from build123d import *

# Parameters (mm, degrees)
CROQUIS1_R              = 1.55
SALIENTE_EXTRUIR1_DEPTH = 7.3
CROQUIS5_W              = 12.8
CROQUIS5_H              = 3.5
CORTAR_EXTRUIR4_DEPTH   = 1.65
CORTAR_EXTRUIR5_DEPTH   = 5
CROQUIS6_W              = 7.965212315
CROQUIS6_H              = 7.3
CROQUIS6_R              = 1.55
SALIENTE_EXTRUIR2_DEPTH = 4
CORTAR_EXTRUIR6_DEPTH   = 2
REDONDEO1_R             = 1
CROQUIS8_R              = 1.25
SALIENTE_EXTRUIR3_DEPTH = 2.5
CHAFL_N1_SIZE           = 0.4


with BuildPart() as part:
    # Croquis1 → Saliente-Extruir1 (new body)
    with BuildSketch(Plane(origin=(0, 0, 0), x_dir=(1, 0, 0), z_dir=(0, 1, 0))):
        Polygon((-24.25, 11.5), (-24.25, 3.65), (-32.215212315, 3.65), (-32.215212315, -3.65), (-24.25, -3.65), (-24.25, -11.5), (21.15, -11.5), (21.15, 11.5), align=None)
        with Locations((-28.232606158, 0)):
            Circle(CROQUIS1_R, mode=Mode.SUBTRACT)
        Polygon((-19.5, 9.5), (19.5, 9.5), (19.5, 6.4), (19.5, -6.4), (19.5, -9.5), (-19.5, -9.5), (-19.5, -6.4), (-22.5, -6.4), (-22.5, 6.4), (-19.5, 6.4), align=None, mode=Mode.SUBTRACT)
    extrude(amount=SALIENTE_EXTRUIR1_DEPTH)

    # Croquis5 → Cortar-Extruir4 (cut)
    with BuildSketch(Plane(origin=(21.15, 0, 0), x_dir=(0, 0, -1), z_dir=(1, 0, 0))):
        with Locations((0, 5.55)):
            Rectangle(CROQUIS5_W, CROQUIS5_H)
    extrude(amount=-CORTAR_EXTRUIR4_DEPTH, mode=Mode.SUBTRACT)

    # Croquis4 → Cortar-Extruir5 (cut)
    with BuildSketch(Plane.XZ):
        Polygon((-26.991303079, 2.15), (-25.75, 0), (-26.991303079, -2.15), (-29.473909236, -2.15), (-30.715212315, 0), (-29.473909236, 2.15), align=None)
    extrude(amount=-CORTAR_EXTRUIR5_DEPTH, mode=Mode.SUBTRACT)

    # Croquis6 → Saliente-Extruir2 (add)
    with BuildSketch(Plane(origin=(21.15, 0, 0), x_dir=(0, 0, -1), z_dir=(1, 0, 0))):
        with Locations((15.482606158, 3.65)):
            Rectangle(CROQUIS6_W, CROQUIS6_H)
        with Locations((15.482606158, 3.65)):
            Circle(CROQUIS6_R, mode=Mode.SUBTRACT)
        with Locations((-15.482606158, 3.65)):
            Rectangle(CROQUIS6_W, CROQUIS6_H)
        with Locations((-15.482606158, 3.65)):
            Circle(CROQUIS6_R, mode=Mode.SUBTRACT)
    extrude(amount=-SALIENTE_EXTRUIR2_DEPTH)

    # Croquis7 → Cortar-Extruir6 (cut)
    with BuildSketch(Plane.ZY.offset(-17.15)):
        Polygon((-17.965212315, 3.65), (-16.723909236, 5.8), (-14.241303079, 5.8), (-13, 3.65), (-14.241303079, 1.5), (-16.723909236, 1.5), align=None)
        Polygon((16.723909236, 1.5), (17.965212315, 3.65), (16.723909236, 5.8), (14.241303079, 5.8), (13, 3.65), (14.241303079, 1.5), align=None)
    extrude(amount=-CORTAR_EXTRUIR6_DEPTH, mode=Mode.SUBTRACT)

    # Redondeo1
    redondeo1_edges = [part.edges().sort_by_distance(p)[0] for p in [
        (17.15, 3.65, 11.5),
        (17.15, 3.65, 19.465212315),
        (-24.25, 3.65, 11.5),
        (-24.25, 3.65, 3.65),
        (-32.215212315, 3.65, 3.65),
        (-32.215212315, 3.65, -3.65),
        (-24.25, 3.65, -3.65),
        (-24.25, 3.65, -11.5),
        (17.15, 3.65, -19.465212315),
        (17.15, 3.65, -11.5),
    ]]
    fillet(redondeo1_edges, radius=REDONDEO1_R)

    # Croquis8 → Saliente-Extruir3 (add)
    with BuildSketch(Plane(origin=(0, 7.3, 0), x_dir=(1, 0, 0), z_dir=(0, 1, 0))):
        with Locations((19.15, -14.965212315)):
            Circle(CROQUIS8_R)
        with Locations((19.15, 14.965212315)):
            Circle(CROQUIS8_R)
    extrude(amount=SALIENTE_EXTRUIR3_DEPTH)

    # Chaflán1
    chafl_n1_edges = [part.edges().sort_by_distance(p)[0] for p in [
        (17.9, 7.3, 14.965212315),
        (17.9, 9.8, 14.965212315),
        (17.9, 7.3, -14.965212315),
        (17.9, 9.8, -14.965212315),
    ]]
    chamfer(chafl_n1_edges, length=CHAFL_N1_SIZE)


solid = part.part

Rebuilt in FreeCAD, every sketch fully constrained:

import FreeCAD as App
import Part
import Sketcher
Q = App.Units.Quantity


def edges_at(feature, points):
    """Names of the edges that pass closest to the given points."""
    edges = feature.Shape.Edges
    near = lambda p: min(range(len(edges)), key=lambda i: edges[i].distToShape(Part.Vertex(*p))[0])
    return sorted({f"Edge{near(p) + 1}" for p in points})


def add_polygon(sketch, points):
    """Adds a closed chain of lines whose ends are joined by coincident constraints."""
    first, n = sketch.GeometryCount, len(points)
    for a, b in zip(points, points[1:] + points[:1]):
        sketch.addGeometry(Part.LineSegment(App.Vector(*a, 0), App.Vector(*b, 0)), False)
    for i in range(n):
        sketch.addConstraint(Sketcher.Constraint("Coincident", first + i, 2, first + (i + 1) % n, 1))

doc = App.newDocument("Part")
params = doc.addObject("Spreadsheet::Sheet", "Params")
for row, (alias, value) in enumerate([
    ("sketch1_diameter", "3.1 mm"),
    ("sketch1_width", "39 mm"),
    ("sketch1_width2", "3 mm"),
    ("sketch1_height", "23 mm"),
    ("sketch1_height2", "19 mm"),
    ("pad1_length", "7.3 mm"),
    ("sketch2_width", "3.5 mm"),
    ("sketch2_height", "12.8 mm"),
    ("pocket1_length", "1.65 mm"),
    ("pocket2_length", "5 mm"),
    ("sketch4_diameter", "3.1 mm"),
    ("sketch4_width", "7.3 mm"),
    ("pad2_length", "4 mm"),
    ("pocket3_length", "2 mm"),
    ("fillet_radius", "1 mm"),
    ("sketch6_diameter", "2.5 mm"),
    ("pad3_length", "2.5 mm"),
    ("chamfer_size", "0.4 mm"),
], start=1):
    params.set(f"A{row}", alias)
    params.set(f"B{row}", "=" + value)
    params.setAlias(f"B{row}", alias)

body = doc.addObject("PartDesign::Body", "Body")

# Sketch on XZ plane
sketch1 = doc.addObject("Sketcher::SketchObject", "Sketch")
body.addObject(sketch1)
sketch1.AttachmentSupport = (doc.XZ_Plane, [""])
sketch1.MapMode = "FlatFace"
add_polygon(sketch1, [(-24.25, -11.5), (-24.25, -3.65), (-32.215212, -3.65), (-32.215212, 3.65), (-24.25, 3.65), (-24.25, 11.5), (21.15, 11.5), (21.15, -11.5)])  # lines 0-7
sketch1.addGeometry(Part.Circle(App.Vector(-28.232606, 0, 0), App.Vector(0, 0, 1), 1.55), False)  # 8
add_polygon(sketch1, [(-19.5, -6.4), (-19.5, -9.5), (19.5, -9.5), (19.5, 9.5), (-19.5, 9.5), (-19.5, 6.4), (-22.5, 6.4), (-22.5, -6.4)])  # lines 9-16
sketch1.addConstraint(Sketcher.Constraint("Vertical", 0))
sketch1.addConstraint(Sketcher.Constraint("Horizontal", 1))
sketch1.addConstraint(Sketcher.Constraint("Vertical", 2))
sketch1.addConstraint(Sketcher.Constraint("Horizontal", 3))
sketch1.addConstraint(Sketcher.Constraint("Vertical", 4))
sketch1.addConstraint(Sketcher.Constraint("Horizontal", 5))
sketch1.addConstraint(Sketcher.Constraint("Vertical", 6))
sketch1.addConstraint(Sketcher.Constraint("Horizontal", 7))
sketch1.addConstraint(Sketcher.Constraint("Vertical", 9))
sketch1.addConstraint(Sketcher.Constraint("Horizontal", 10))
sketch1.addConstraint(Sketcher.Constraint("Vertical", 11))
sketch1.addConstraint(Sketcher.Constraint("Horizontal", 12))
sketch1.addConstraint(Sketcher.Constraint("Vertical", 13))
sketch1.addConstraint(Sketcher.Constraint("Horizontal", 14))
sketch1.addConstraint(Sketcher.Constraint("Vertical", 15))
sketch1.addConstraint(Sketcher.Constraint("Horizontal", 16))
sketch1.addConstraint(Sketcher.Constraint("Symmetric", 9, 2, 11, 2, -1, 1))
sketch1.addConstraint(Sketcher.Constraint("Symmetric", 0, 2, 3, 2, -1))
sketch1.addConstraint(Sketcher.Constraint("Symmetric", 13, 2, 16, 2, -1))
sketch1.addConstraint(Sketcher.Constraint("PointOnObject", 8, 3, -1))
sketch1.addConstraint(Sketcher.Constraint("Equal", 0, 4))
sketch1.addConstraint(Sketcher.Constraint("Diameter", 8, 3.1))
sketch1.addConstraint(Sketcher.Constraint("DistanceX", 10, 1, 10, 2, 39.0))
sketch1.addConstraint(Sketcher.Constraint("DistanceX", 14, 2, 14, 1, 3.0))
sketch1.addConstraint(Sketcher.Constraint("DistanceY", 6, 2, 6, 1, 23.0))
sketch1.addConstraint(Sketcher.Constraint("DistanceY", 11, 1, 11, 2, 19.0))
sketch1.addConstraint(Sketcher.Constraint("DistanceX", 5, 1, 5, 2, 45.4))
sketch1.addConstraint(Sketcher.Constraint("DistanceY", 2, 1, 2, 2, 7.3))
sketch1.addConstraint(Sketcher.Constraint("DistanceY", 9, 2, 9, 1, 3.1))
sketch1.addConstraint(Sketcher.Constraint("DistanceX", 0, 2, -1, 1, 24.25))
sketch1.addConstraint(Sketcher.Constraint("DistanceX", 1, 2, 1, 1, 7.965212))
sketch1.addConstraint(Sketcher.Constraint("DistanceX", 8, 3, -1, 1, 28.232606))
sketch1.setExpression("Constraints[37]", "Params.sketch1_diameter")
sketch1.setExpression("Constraints[38]", "Params.sketch1_width")
sketch1.setExpression("Constraints[39]", "Params.sketch1_width2")
sketch1.setExpression("Constraints[40]", "Params.sketch1_height")
sketch1.setExpression("Constraints[41]", "Params.sketch1_height2")
pad1 = doc.addObject("PartDesign::Pad", "Pad")
body.addObject(pad1)
pad1.Profile = sketch1
pad1.setExpression("Length", "Params.pad1_length")
pad1.Reversed = True

# Sketch on YZ plane
sketch2 = doc.addObject("Sketcher::SketchObject", "Sketch001")
body.addObject(sketch2)
sketch2.AttachmentSupport = (doc.YZ_Plane, [""])
sketch2.MapMode = "FlatFace"
sketch2.AttachmentOffset = App.Placement(App.Vector(0, 0, 21.15), App.Rotation())
add_polygon(sketch2, [(7.3, 6.4), (3.8, 6.4), (3.8, -6.4), (7.3, -6.4)])  # lines 0-3
sketch2.addConstraint(Sketcher.Constraint("Horizontal", 0))
sketch2.addConstraint(Sketcher.Constraint("Vertical", 1))
sketch2.addConstraint(Sketcher.Constraint("Horizontal", 2))
sketch2.addConstraint(Sketcher.Constraint("Vertical", 3))
sketch2.addConstraint(Sketcher.Constraint("DistanceX", 0, 2, 0, 1, 3.5))
sketch2.addConstraint(Sketcher.Constraint("DistanceY", 1, 2, 1, 1, 12.8))
sketch2.addConstraint(Sketcher.Constraint("DistanceX", -1, 1, 0, 2, 3.8))
sketch2.addConstraint(Sketcher.Constraint("DistanceY", -1, 1, 0, 2, 6.4))
sketch2.setExpression("Constraints[8]", "Params.sketch2_width")
sketch2.setExpression("Constraints[9]", "Params.sketch2_height")
pocket1 = doc.addObject("PartDesign::Pocket", "Pocket")
body.addObject(pocket1)
pocket1.Profile = sketch2
pocket1.setExpression("Length", "Params.pocket1_length")

# Sketch on XZ plane
sketch3 = doc.addObject("Sketcher::SketchObject", "Sketch002")
body.addObject(sketch3)
sketch3.AttachmentSupport = (doc.XZ_Plane, [""])
sketch3.MapMode = "FlatFace"
add_polygon(sketch3, [(-25.75, 0), (-26.991303, 2.15), (-29.473909, 2.15), (-30.715212, 0), (-29.473909, -2.15), (-26.991303, -2.15)])  # lines 0-5
sketch3.addConstraint(Sketcher.Constraint("Horizontal", 1))
sketch3.addConstraint(Sketcher.Constraint("Horizontal", 4))
sketch3.addConstraint(Sketcher.Constraint("Symmetric", 1, 2, 3, 2, -1))
sketch3.addConstraint(Sketcher.Constraint("PointOnObject", 2, 2, -1))
sketch3.addConstraint(Sketcher.Constraint("PointOnObject", 5, 2, -1))
sketch3.addConstraint(Sketcher.Constraint("Parallel", 0, 3))
sketch3.addConstraint(Sketcher.Constraint("Parallel", 2, 5))
sketch3.addConstraint(Sketcher.Constraint("Angle", 0, Q("120 deg")))
sketch3.addConstraint(Sketcher.Constraint("DistanceY", 3, 2, 1, 2, 4.3))
sketch3.addConstraint(Sketcher.Constraint("DistanceX", 5, 2, -1, 1, 25.75))
sketch3.addConstraint(Sketcher.Constraint("DistanceX", 1, 2, 1, 1, 2.482606))
pocket2 = doc.addObject("PartDesign::Pocket", "Pocket001")
body.addObject(pocket2)
pocket2.Profile = sketch3
pocket2.setExpression("Length", "Params.pocket2_length")

# Sketch on YZ plane
sketch4 = doc.addObject("Sketcher::SketchObject", "Sketch003")
body.addObject(sketch4)
sketch4.AttachmentSupport = (doc.YZ_Plane, [""])
sketch4.MapMode = "FlatFace"
sketch4.AttachmentOffset = App.Placement(App.Vector(0, 0, 21.15), App.Rotation())
add_polygon(sketch4, [(7.3, -11.5), (0, -11.5), (0, -19.465212), (7.3, -19.465212)])  # lines 0-3
sketch4.addGeometry(Part.Circle(App.Vector(3.65, -15.482606, 0), App.Vector(0, 0, 1), 1.55), False)  # 4
add_polygon(sketch4, [(7.3, 19.465212), (0, 19.465212), (0, 11.5), (7.3, 11.5)])  # lines 5-8
sketch4.addGeometry(Part.Circle(App.Vector(3.65, 15.482606, 0), App.Vector(0, 0, 1), 1.55), False)  # 9
sketch4.addConstraint(Sketcher.Constraint("Horizontal", 0))
sketch4.addConstraint(Sketcher.Constraint("Vertical", 1))
sketch4.addConstraint(Sketcher.Constraint("Horizontal", 2))
sketch4.addConstraint(Sketcher.Constraint("Vertical", 3))
sketch4.addConstraint(Sketcher.Constraint("Horizontal", 5))
sketch4.addConstraint(Sketcher.Constraint("Vertical", 6))
sketch4.addConstraint(Sketcher.Constraint("Horizontal", 7))
sketch4.addConstraint(Sketcher.Constraint("Vertical", 8))
sketch4.addConstraint(Sketcher.Constraint("Equal", 4, 9))
sketch4.addConstraint(Sketcher.Constraint("Symmetric", 1, 2, 5, 2, -1, 1))
sketch4.addConstraint(Sketcher.Constraint("Symmetric", 4, 3, 9, 3, -1))
sketch4.addConstraint(Sketcher.Constraint("Symmetric", 0, 2, 6, 2, -1))
sketch4.addConstraint(Sketcher.Constraint("Vertical", 3, 2, 7, 2))
sketch4.addConstraint(Sketcher.Constraint("Diameter", 4, 3.1))
sketch4.addConstraint(Sketcher.Constraint("DistanceX", 0, 2, 0, 1, 7.3))
sketch4.addConstraint(Sketcher.Constraint("DistanceY", 0, 2, 6, 2, 23.0))
sketch4.addConstraint(Sketcher.Constraint("DistanceX", -1, 1, 4, 3, 3.65))
sketch4.addConstraint(Sketcher.Constraint("DistanceY", 1, 2, 1, 1, 7.965212))
sketch4.addConstraint(Sketcher.Constraint("DistanceY", 1, 2, 9, 3, 34.947818))
sketch4.setExpression("Constraints[21]", "Params.sketch4_diameter")
sketch4.setExpression("Constraints[22]", "Params.sketch4_width")
pad2 = doc.addObject("PartDesign::Pad", "Pad001")
body.addObject(pad2)
pad2.Profile = sketch4
pad2.setExpression("Length", "Params.pad2_length")
pad2.Reversed = True

# Sketch on YZ plane
sketch5 = doc.addObject("Sketcher::SketchObject", "Sketch004")
body.addObject(sketch5)
sketch5.AttachmentSupport = (doc.YZ_Plane, [""])
sketch5.MapMode = "FlatFace"
sketch5.AttachmentOffset = App.Placement(App.Vector(0, 0, 17.15), App.Rotation())
add_polygon(sketch5, [(5.8, -16.723909), (3.65, -17.965212), (1.5, -16.723909), (1.5, -14.241303), (3.65, -13), (5.8, -14.241303)])  # lines 0-5
add_polygon(sketch5, [(1.5, 16.723909), (3.65, 17.965212), (5.8, 16.723909), (5.8, 14.241303), (3.65, 13), (1.5, 14.241303)])  # lines 6-11
sketch5.addConstraint(Sketcher.Constraint("Vertical", 2))
sketch5.addConstraint(Sketcher.Constraint("Vertical", 5))
sketch5.addConstraint(Sketcher.Constraint("Vertical", 8))
sketch5.addConstraint(Sketcher.Constraint("Vertical", 11))
sketch5.addConstraint(Sketcher.Constraint("Symmetric", 0, 2, 6, 2, -1))
sketch5.addConstraint(Sketcher.Constraint("Symmetric", 5, 2, 7, 2, -1))
sketch5.addConstraint(Sketcher.Constraint("Symmetric", 3, 2, 9, 2, -1))
sketch5.addConstraint(Sketcher.Constraint("Symmetric", 2, 2, 10, 2, -1))
sketch5.addConstraint(Sketcher.Constraint("Parallel", 0, 3))
sketch5.addConstraint(Sketcher.Constraint("Parallel", 1, 4))
sketch5.addConstraint(Sketcher.Constraint("Parallel", 3, 6))
sketch5.addConstraint(Sketcher.Constraint("Parallel", 4, 7))
sketch5.addConstraint(Sketcher.Constraint("Parallel", 6, 9))
sketch5.addConstraint(Sketcher.Constraint("Horizontal", 2, 2, 4, 2))
sketch5.addConstraint(Sketcher.Constraint("Horizontal", 1, 2, 5, 2))
sketch5.addConstraint(Sketcher.Constraint("Angle", 0, Q("-150 deg")))
sketch5.addConstraint(Sketcher.Constraint("DistanceY", 3, 2, -1, 1, 13.0))
sketch5.addConstraint(Sketcher.Constraint("DistanceX", -1, 1, 1, 2, 1.5))
sketch5.addConstraint(Sketcher.Constraint("DistanceX", -1, 1, 4, 2, 5.8))
sketch5.addConstraint(Sketcher.Constraint("DistanceY", 2, 1, 2, 2, 2.482606))
pocket3 = doc.addObject("PartDesign::Pocket", "Pocket002")
body.addObject(pocket3)
pocket3.Profile = sketch5
pocket3.setExpression("Length", "Params.pocket3_length")
pocket3.Reversed = True
doc.recompute()

fillet = doc.addObject("PartDesign::Fillet", "Fillet")
body.addObject(fillet)
fillet.Base = (pocket3, edges_at(pocket3, [
    (17.15, 3.65, 11.5),
    (17.15, 3.65, 19.465),
    (-24.25, 3.65, 11.5),
    (-24.25, 3.65, 3.65),
    (-32.215, 3.65, 3.65),
    (-32.215, 3.65, -3.65),
    (-24.25, 3.65, -3.65),
    (-24.25, 3.65, -11.5),
    (17.15, 3.65, -19.465),
    (17.15, 3.65, -11.5),
]))
fillet.setExpression("Radius", "Params.fillet_radius")

# Sketch on XZ plane
sketch6 = doc.addObject("Sketcher::SketchObject", "Sketch005")
body.addObject(sketch6)
sketch6.AttachmentSupport = (doc.XZ_Plane, [""])
sketch6.MapMode = "FlatFace"
sketch6.AttachmentOffset = App.Placement(App.Vector(0, 0, -7.3), App.Rotation())
sketch6.addGeometry(Part.Circle(App.Vector(19.15, 14.965212, 0), App.Vector(0, 0, 1), 1.25), False)
sketch6.addGeometry(Part.Circle(App.Vector(19.15, -14.965212, 0), App.Vector(0, 0, 1), 1.25), False)
sketch6.addConstraint(Sketcher.Constraint("Equal", 0, 1))
sketch6.addConstraint(Sketcher.Constraint("Symmetric", 0, 3, 1, 3, -1))
sketch6.addConstraint(Sketcher.Constraint("Diameter", 0, 2.5))
sketch6.addConstraint(Sketcher.Constraint("DistanceX", -1, 1, 0, 3, 19.15))
sketch6.addConstraint(Sketcher.Constraint("DistanceY", -1, 1, 0, 3, 14.965212))
sketch6.setExpression("Constraints[2]", "Params.sketch6_diameter")
pad3 = doc.addObject("PartDesign::Pad", "Pad002")
body.addObject(pad3)
pad3.Profile = sketch6
pad3.setExpression("Length", "Params.pad3_length")
pad3.Reversed = True
doc.recompute()

chamfer = doc.addObject("PartDesign::Chamfer", "Chamfer")
body.addObject(chamfer)
chamfer.Base = (pad3, edges_at(pad3, [
    (17.9, 7.3, 14.965),
    (17.9, 9.8, 14.965),
    (17.9, 7.3, -14.965),
    (17.9, 9.8, -14.965),
]))
chamfer.setExpression("Size", "Params.chamfer_size")

doc.recompute()
